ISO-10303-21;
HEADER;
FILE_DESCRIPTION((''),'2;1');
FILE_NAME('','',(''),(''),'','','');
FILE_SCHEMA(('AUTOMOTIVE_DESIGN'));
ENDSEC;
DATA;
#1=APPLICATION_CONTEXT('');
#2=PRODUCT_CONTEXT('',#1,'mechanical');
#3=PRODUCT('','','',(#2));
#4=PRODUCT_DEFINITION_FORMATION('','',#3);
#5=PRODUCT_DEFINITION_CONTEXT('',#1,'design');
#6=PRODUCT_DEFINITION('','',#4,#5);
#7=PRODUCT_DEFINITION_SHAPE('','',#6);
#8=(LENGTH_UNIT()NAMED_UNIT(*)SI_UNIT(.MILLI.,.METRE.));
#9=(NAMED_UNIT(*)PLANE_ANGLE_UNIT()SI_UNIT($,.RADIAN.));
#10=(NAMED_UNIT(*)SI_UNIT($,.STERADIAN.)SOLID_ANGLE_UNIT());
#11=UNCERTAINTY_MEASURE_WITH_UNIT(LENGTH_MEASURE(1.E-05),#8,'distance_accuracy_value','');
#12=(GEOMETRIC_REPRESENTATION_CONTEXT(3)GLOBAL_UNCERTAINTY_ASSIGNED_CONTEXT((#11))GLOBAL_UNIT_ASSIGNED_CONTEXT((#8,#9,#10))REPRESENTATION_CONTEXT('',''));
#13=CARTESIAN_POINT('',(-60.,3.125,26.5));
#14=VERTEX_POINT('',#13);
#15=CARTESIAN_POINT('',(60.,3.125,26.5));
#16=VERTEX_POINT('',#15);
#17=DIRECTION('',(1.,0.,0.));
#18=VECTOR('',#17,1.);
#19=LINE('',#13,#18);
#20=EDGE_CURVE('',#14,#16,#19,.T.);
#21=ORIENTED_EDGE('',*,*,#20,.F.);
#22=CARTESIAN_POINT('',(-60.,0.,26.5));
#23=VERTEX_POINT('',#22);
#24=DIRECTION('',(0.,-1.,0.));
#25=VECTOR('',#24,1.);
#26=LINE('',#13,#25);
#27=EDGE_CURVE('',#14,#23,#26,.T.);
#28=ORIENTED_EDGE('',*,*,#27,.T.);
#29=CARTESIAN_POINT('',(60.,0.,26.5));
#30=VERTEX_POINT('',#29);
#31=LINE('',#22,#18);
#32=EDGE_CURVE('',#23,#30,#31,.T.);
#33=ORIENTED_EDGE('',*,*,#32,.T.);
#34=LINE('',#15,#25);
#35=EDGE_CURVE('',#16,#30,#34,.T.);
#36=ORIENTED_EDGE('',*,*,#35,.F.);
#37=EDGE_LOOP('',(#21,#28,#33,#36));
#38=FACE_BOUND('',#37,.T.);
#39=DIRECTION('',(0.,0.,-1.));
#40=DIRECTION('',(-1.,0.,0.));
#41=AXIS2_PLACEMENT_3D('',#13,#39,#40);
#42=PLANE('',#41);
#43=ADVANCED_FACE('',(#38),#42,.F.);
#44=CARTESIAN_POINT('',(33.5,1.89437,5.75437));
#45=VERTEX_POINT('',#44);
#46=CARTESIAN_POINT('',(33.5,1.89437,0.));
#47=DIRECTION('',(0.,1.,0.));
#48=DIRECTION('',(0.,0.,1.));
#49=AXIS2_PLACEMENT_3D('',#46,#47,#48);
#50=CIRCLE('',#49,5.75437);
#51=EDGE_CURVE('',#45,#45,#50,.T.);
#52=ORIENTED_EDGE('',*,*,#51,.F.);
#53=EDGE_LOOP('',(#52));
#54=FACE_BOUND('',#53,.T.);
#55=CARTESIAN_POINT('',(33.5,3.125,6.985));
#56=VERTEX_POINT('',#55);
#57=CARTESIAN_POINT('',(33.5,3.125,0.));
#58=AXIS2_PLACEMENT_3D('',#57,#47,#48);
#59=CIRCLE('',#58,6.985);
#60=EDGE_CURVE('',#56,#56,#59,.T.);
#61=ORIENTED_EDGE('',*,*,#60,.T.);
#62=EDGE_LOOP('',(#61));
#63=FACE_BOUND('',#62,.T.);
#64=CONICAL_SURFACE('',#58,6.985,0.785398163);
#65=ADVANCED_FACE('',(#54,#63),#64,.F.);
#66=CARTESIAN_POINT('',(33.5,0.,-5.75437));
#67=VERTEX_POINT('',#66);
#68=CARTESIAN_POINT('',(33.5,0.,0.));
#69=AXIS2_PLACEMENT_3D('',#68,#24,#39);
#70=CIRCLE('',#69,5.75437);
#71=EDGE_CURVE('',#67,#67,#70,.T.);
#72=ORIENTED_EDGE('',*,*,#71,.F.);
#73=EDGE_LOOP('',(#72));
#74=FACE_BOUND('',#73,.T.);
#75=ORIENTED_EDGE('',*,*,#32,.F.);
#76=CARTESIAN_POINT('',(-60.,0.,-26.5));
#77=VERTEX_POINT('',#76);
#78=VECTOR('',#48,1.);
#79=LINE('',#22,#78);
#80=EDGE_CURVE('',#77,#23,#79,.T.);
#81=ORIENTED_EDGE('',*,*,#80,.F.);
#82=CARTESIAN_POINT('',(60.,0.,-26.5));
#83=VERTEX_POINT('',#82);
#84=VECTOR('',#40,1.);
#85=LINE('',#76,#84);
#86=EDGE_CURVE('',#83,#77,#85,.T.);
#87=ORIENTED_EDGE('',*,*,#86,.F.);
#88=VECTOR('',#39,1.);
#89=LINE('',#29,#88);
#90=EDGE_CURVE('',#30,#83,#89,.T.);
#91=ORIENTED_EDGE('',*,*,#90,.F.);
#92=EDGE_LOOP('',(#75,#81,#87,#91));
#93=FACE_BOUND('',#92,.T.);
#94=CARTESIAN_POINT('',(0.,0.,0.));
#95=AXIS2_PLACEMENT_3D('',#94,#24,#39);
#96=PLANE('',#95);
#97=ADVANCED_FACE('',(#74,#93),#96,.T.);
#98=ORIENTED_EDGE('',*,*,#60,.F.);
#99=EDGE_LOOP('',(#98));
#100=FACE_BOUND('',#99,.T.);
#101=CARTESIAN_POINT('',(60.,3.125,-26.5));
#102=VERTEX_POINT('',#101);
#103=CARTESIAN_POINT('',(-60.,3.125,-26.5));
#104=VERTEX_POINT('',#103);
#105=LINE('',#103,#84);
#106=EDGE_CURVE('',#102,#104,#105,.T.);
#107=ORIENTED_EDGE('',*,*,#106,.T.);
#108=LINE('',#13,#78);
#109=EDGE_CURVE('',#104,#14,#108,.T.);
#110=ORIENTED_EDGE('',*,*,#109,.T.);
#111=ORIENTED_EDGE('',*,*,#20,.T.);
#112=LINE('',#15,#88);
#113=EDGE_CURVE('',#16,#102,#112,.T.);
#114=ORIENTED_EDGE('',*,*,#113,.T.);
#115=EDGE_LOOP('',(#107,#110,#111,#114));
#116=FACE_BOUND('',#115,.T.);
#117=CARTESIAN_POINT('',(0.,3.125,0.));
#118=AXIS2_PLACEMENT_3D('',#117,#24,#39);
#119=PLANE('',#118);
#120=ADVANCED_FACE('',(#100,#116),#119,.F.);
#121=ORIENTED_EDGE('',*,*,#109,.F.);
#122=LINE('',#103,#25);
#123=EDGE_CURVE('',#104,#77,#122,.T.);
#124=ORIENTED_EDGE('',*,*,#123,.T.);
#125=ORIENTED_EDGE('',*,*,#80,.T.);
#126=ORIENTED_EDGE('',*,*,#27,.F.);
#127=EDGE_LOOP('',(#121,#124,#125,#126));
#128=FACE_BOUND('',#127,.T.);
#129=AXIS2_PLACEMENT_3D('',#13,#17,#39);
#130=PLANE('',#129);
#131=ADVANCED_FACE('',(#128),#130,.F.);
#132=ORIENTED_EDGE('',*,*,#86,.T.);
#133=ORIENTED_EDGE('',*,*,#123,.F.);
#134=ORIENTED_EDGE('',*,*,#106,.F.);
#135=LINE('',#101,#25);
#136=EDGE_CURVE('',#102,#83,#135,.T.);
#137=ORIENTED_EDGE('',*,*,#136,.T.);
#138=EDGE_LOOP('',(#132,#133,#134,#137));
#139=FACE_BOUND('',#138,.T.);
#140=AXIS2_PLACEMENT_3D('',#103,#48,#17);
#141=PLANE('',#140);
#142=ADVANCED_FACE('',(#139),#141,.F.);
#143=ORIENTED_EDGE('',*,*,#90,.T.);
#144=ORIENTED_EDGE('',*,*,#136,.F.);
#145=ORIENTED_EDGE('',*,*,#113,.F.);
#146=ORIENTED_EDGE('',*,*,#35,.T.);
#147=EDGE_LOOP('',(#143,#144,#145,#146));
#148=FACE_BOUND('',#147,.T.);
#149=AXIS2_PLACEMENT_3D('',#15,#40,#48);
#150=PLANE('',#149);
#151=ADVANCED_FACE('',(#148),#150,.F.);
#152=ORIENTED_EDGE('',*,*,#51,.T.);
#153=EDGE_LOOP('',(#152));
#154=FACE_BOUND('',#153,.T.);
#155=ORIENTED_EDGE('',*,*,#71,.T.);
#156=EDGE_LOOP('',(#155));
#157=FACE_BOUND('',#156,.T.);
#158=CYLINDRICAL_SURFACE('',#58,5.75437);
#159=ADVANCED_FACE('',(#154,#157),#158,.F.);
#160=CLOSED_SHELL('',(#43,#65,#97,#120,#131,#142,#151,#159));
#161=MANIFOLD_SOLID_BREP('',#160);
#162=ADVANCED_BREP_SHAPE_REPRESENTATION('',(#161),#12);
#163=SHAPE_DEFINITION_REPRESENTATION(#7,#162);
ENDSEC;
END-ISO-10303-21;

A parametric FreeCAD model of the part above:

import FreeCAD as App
import Part
import Sketcher
from FreeCAD import Vector

doc = App.newDocument("Part")
body = doc.addObject("PartDesign::Body", "Body")

sketch1 = body.newObject("Sketcher::SketchObject", "Sketch")
sketch1.AttachmentSupport = (doc.getObject("XZ_Plane"), [""])
sketch1.MapMode = "FlatFace"
sketch1.addGeometry([
    Part.LineSegment(Vector(-60, -26, 0), Vector(-60, 26, 0)),
    Part.LineSegment(Vector(-60, 26, 0), Vector(60, 26, 0)),
    Part.LineSegment(Vector(60, 26, 0), Vector(60, -26, 0)),
    Part.LineSegment(Vector(60, -26, 0), Vector(-60, -26, 0)),
], False)
sketch1.addConstraint([
    Sketcher.Constraint("Coincident", 0, 2, 1, 1),
    Sketcher.Constraint("Coincident", 1, 2, 2, 1),
    Sketcher.Constraint("Coincident", 2, 2, 3, 1),
    Sketcher.Constraint("Coincident", 3, 2, 0, 1),
    Sketcher.Constraint("Vertical", 0),
    Sketcher.Constraint("Horizontal", 1),
    Sketcher.Constraint("Vertical", 2),
    Sketcher.Constraint("Horizontal", 3),
    Sketcher.Constraint("Symmetric", 0, 2, 2, 2, -1, 1),
    Sketcher.Constraint("DistanceX", 1, 1, 1, 2, 120.0),
    Sketcher.Constraint("DistanceY", 0, 1, 0, 2, 53.0),
])
pad1 = body.newObject("PartDesign::Pad", "Pad")
pad1.Profile = sketch1
pad1.Length = 3.125
pad1.Reversed = True

sketch2 = body.newObject("Sketcher::SketchObject", "Sketch001")
sketch2.AttachmentSupport = (doc.getObject("XZ_Plane"), [""])
sketch2.MapMode = "FlatFace"
sketch2.AttachmentOffset = App.Placement(Vector(0, 0, -3.125), App.Rotation())
sketch2.addGeometry(Part.Circle(Vector(34, 0, 0), Vector(0, 0, 1), 6), False)
sketch2.addConstraint([
    Sketcher.Constraint("PointOnObject", 0, 3, -1),
    Sketcher.Constraint("DistanceX", -1, 1, 0, 3, 33.5),
    Sketcher.Constraint("Diameter", 0, 11.50874),
])
doc.recompute()
hole = body.newObject("PartDesign::Hole", "Hole")
hole.Profile = sketch2
hole.ThreadType = "None"
hole.Diameter = 11.50874
hole.DepthType = "Dimension"
hole.Depth = 30
hole.DrillPoint = "Angled"
hole.DrillPointAngle = 118
hole.HoleCutType = "Countersink"
hole.HoleCutDiameter = 13.97
hole.HoleCutCountersinkAngle = 90
hole.Reversed = True

doc.recompute()
